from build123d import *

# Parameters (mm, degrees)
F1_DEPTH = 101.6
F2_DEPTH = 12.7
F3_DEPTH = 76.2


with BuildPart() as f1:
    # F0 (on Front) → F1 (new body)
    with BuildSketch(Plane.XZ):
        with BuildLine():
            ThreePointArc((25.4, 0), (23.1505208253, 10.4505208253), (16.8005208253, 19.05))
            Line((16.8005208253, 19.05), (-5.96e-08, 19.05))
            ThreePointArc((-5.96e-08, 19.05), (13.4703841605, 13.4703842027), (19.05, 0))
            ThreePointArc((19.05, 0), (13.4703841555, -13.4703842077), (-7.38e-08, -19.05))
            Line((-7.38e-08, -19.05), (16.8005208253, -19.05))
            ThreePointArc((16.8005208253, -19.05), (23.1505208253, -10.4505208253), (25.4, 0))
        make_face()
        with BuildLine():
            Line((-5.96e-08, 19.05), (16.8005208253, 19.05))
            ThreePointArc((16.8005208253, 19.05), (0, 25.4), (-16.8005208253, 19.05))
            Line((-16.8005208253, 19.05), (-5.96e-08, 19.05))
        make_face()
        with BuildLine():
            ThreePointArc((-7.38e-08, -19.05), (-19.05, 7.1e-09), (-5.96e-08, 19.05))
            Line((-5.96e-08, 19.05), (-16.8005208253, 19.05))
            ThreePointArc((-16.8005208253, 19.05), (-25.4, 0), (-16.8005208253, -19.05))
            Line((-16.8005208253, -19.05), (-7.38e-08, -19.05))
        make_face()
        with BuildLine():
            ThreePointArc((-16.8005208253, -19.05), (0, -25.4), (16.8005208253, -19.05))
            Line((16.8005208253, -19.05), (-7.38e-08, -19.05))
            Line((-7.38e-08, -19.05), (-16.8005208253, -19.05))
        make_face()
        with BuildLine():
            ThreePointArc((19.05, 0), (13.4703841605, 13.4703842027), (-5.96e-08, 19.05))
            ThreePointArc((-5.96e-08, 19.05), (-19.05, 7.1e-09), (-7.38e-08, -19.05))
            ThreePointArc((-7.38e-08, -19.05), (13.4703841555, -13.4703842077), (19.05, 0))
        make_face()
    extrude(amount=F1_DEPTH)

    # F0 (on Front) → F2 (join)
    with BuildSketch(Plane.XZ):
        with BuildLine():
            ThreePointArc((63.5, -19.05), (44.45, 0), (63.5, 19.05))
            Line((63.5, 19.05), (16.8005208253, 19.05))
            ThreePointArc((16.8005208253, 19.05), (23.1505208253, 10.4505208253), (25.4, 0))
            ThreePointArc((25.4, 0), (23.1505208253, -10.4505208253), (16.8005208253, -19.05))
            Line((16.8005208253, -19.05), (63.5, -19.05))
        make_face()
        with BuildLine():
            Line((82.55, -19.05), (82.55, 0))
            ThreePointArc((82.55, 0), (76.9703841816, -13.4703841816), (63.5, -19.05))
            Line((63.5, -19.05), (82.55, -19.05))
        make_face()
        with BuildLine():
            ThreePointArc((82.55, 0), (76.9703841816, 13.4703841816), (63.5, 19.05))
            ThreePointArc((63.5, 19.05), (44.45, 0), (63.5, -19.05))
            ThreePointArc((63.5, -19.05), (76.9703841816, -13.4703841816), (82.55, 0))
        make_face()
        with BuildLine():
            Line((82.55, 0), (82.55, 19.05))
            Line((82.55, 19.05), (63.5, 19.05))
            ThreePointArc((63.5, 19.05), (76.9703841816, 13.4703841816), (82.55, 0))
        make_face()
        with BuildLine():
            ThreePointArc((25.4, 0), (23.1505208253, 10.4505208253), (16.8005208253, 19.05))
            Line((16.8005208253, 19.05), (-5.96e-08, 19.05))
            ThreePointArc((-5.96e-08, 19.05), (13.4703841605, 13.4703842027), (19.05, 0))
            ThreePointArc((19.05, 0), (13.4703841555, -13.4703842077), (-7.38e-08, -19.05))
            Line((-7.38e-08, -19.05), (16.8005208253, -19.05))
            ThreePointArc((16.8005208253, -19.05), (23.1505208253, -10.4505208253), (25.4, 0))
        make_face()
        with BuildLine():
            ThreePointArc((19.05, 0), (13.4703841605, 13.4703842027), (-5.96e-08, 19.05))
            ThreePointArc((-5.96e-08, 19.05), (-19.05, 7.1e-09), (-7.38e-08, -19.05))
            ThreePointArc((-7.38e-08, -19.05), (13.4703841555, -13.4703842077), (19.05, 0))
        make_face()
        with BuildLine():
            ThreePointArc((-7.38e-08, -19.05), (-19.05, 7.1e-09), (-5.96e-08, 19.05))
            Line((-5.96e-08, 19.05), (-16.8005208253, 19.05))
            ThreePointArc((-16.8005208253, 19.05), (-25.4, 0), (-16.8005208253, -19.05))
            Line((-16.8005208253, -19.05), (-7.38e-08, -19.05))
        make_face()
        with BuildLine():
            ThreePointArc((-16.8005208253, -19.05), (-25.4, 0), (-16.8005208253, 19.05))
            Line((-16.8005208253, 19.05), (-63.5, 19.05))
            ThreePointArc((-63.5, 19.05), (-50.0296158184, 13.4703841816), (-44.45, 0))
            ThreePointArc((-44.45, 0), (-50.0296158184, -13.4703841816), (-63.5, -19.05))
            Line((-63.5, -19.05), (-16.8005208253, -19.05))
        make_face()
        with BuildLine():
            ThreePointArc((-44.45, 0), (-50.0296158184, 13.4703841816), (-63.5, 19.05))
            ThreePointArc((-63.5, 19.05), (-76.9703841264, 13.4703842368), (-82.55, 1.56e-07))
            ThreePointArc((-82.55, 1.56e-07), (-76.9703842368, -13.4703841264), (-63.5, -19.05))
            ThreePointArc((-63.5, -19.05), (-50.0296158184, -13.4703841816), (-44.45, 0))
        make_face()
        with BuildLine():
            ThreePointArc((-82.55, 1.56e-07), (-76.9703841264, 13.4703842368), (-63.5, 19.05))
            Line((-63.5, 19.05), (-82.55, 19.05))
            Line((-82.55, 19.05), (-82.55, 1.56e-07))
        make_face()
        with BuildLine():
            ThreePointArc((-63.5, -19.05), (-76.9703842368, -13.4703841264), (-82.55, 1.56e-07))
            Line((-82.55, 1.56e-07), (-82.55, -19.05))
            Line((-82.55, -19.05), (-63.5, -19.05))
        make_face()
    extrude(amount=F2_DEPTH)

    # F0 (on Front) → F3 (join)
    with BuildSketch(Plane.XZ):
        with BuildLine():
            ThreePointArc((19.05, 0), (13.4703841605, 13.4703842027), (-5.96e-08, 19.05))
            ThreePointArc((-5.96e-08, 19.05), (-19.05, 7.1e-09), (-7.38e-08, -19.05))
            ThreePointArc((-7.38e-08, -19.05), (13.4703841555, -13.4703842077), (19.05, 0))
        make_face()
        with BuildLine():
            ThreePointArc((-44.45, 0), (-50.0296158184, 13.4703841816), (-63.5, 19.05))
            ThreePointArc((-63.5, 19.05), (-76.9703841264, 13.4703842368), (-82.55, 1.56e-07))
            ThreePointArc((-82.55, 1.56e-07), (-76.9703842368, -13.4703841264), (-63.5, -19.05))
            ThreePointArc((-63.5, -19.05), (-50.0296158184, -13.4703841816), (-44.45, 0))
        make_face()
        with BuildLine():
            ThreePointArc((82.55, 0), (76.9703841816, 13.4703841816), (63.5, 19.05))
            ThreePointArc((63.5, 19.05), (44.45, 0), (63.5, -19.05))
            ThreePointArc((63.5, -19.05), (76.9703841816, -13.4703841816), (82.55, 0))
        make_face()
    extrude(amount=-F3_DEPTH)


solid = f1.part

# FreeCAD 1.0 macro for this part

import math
import FreeCAD as App
import Part
import Sketcher
Q = App.Units.Quantity

doc = App.newDocument("Part")
body = doc.addObject("PartDesign::Body", "Body")

# Sketch on XZ plane
sketch1 = body.newObject("Sketcher::SketchObject", "Sketch")
sketch1.AttachmentSupport = (doc.getObject("XZ_Plane"), [""])
sketch1.MapMode = "FlatFace"
sketch1.addGeometry([
    Part.ArcOfCircle(Part.Circle(App.Vector(0, 0, 0), App.Vector(0, 0, 1), 25), math.radians(131), math.radians(229)),  # 0
    Part.ArcOfCircle(Part.Circle(App.Vector(0, 0, 0), App.Vector(0, 0, 1), 25), math.radians(-131), math.radians(-49)),  # 1
    Part.ArcOfCircle(Part.Circle(App.Vector(0, 0, 0), App.Vector(0, 0, 1), 25), math.radians(-49), math.radians(0)),  # 2
    Part.ArcOfCircle(Part.Circle(App.Vector(0, 0, 0), App.Vector(0, 0, 1), 25), math.radians(0), math.radians(49)),  # 3
    Part.ArcOfCircle(Part.Circle(App.Vector(0, 0, 0), App.Vector(0, 0, 1), 25), math.radians(49), math.radians(131)),  # 4
], False)
sketch1.addConstraint([
    Sketcher.Constraint("Tangent", 0, 2, 1, 1),
    Sketcher.Constraint("Tangent", 1, 2, 2, 1),
    Sketcher.Constraint("Tangent", 2, 2, 3, 1),
    Sketcher.Constraint("Tangent", 3, 2, 4, 1),
    Sketcher.Constraint("Tangent", 4, 2, 0, 1),
    Sketcher.Constraint("Coincident", 0, 3, -1, 1),
    Sketcher.Constraint("Coincident", 2, 3, -1, 1),
    Sketcher.Constraint("PointOnObject", 2, 2, -1),
    Sketcher.Constraint("Horizontal", 0, 2, 1, 2),
    Sketcher.Constraint("Horizontal", 3, 2, 4, 2),
    Sketcher.Constraint("Vertical", 1, 2, 3, 2),
    Sketcher.Constraint("Radius", 0, Q("1 in")),
    Sketcher.Constraint("DistanceY", 0, 2, -1, 1, Q("0.75 in")),
])
pad1 = body.newObject("PartDesign::Pad", "Pad")
pad1.Profile = sketch1
pad1.Length = Q("4 in")

# Sketch on XZ plane
sketch2 = body.newObject("Sketcher::SketchObject", "Sketch001")
sketch2.AttachmentSupport = (doc.getObject("XZ_Plane"), [""])
sketch2.MapMode = "FlatFace"
sketch2.addGeometry([
    Part.LineSegment(App.Vector(83, -19, 0), App.Vector(83, 19, 0)),
    Part.LineSegment(App.Vector(83, 19, 0), App.Vector(-83, 19, 0)),
    Part.LineSegment(App.Vector(-83, 19, 0), App.Vector(-83, -19, 0)),
    Part.LineSegment(App.Vector(-83, -19, 0), App.Vector(83, -19, 0)),
], False)
sketch2.addConstraint([
    Sketcher.Constraint("Coincident", 0, 2, 1, 1),
    Sketcher.Constraint("Coincident", 1, 2, 2, 1),
    Sketcher.Constraint("Coincident", 2, 2, 3, 1),
    Sketcher.Constraint("Coincident", 3, 2, 0, 1),
    Sketcher.Constraint("Vertical", 0),
    Sketcher.Constraint("Horizontal", 1),
    Sketcher.Constraint("Vertical", 2),
    Sketcher.Constraint("Horizontal", 3),
    Sketcher.Constraint("Symmetric", 0, 2, 2, 2, -1, 1),
    Sketcher.Constraint("DistanceX", 1, 2, 1, 1, Q("6.5 in")),
    Sketcher.Constraint("DistanceY", 0, 1, 0, 2, Q("1.5 in")),
])
pad2 = body.newObject("PartDesign::Pad", "Pad001")
pad2.Profile = sketch2
pad2.Length = Q("0.5 in")

# Sketch on XZ plane
sketch3 = body.newObject("Sketcher::SketchObject", "Sketch002")
sketch3.AttachmentSupport = (doc.getObject("XZ_Plane"), [""])
sketch3.MapMode = "FlatFace"
sketch3.addGeometry([
    Part.Circle(App.Vector(0, 0, 0), App.Vector(0, 0, 1), 19),  # 0
    Part.ArcOfCircle(Part.Circle(App.Vector(-64, 0, 0), App.Vector(0, 0, 1), 19), math.radians(0), math.radians(90)),  # 1
    Part.ArcOfCircle(Part.Circle(App.Vector(-64, 0, 0), App.Vector(0, 0, 1), 19), math.radians(90), math.radians(180)),  # 2
    Part.ArcOfCircle(Part.Circle(App.Vector(-64, 0, 0), App.Vector(0, 0, 1), 19), math.radians(180), math.radians(270)),  # 3
    Part.ArcOfCircle(Part.Circle(App.Vector(-64, 0, 0), App.Vector(0, 0, 1), 19), math.radians(-90), math.radians(0)),  # 4
    Part.Circle(App.Vector(64, 0, 0), App.Vector(0, 0, 1), 19),  # 5
], False)
sketch3.addConstraint([
    Sketcher.Constraint("Tangent", 1, 2, 2, 1),
    Sketcher.Constraint("Tangent", 2, 2, 3, 1),
    Sketcher.Constraint("Tangent", 3, 2, 4, 1),
    Sketcher.Constraint("Tangent", 4, 2, 1, 1),
    Sketcher.Constraint("Coincident", 0, 3, -1, 1),
    Sketcher.Constraint("Equal", 0, 1),
    Sketcher.Constraint("Equal", 1, 2),
    Sketcher.Constraint("Equal", 4, 5),
    Sketcher.Constraint("Symmetric", 1, 3, 5, 3, -1, 1),
    Sketcher.Constraint("Symmetric", 1, 2, 3, 2, -1),
    Sketcher.Constraint("PointOnObject", 2, 2, -1),
    Sketcher.Constraint("PointOnObject", 4, 2, -1),
    Sketcher.Constraint("Vertical", 4, 3, 1, 2),
    Sketcher.Constraint("Diameter", 0, Q("1.5 in")),
    Sketcher.Constraint("DistanceX", 1, 3, 5, 3, Q("5 in")),
])
pad3 = body.newObject("PartDesign::Pad", "Pad002")
pad3.Profile = sketch3
pad3.Length = Q("3 in")
pad3.Reversed = True

doc.recompute()
